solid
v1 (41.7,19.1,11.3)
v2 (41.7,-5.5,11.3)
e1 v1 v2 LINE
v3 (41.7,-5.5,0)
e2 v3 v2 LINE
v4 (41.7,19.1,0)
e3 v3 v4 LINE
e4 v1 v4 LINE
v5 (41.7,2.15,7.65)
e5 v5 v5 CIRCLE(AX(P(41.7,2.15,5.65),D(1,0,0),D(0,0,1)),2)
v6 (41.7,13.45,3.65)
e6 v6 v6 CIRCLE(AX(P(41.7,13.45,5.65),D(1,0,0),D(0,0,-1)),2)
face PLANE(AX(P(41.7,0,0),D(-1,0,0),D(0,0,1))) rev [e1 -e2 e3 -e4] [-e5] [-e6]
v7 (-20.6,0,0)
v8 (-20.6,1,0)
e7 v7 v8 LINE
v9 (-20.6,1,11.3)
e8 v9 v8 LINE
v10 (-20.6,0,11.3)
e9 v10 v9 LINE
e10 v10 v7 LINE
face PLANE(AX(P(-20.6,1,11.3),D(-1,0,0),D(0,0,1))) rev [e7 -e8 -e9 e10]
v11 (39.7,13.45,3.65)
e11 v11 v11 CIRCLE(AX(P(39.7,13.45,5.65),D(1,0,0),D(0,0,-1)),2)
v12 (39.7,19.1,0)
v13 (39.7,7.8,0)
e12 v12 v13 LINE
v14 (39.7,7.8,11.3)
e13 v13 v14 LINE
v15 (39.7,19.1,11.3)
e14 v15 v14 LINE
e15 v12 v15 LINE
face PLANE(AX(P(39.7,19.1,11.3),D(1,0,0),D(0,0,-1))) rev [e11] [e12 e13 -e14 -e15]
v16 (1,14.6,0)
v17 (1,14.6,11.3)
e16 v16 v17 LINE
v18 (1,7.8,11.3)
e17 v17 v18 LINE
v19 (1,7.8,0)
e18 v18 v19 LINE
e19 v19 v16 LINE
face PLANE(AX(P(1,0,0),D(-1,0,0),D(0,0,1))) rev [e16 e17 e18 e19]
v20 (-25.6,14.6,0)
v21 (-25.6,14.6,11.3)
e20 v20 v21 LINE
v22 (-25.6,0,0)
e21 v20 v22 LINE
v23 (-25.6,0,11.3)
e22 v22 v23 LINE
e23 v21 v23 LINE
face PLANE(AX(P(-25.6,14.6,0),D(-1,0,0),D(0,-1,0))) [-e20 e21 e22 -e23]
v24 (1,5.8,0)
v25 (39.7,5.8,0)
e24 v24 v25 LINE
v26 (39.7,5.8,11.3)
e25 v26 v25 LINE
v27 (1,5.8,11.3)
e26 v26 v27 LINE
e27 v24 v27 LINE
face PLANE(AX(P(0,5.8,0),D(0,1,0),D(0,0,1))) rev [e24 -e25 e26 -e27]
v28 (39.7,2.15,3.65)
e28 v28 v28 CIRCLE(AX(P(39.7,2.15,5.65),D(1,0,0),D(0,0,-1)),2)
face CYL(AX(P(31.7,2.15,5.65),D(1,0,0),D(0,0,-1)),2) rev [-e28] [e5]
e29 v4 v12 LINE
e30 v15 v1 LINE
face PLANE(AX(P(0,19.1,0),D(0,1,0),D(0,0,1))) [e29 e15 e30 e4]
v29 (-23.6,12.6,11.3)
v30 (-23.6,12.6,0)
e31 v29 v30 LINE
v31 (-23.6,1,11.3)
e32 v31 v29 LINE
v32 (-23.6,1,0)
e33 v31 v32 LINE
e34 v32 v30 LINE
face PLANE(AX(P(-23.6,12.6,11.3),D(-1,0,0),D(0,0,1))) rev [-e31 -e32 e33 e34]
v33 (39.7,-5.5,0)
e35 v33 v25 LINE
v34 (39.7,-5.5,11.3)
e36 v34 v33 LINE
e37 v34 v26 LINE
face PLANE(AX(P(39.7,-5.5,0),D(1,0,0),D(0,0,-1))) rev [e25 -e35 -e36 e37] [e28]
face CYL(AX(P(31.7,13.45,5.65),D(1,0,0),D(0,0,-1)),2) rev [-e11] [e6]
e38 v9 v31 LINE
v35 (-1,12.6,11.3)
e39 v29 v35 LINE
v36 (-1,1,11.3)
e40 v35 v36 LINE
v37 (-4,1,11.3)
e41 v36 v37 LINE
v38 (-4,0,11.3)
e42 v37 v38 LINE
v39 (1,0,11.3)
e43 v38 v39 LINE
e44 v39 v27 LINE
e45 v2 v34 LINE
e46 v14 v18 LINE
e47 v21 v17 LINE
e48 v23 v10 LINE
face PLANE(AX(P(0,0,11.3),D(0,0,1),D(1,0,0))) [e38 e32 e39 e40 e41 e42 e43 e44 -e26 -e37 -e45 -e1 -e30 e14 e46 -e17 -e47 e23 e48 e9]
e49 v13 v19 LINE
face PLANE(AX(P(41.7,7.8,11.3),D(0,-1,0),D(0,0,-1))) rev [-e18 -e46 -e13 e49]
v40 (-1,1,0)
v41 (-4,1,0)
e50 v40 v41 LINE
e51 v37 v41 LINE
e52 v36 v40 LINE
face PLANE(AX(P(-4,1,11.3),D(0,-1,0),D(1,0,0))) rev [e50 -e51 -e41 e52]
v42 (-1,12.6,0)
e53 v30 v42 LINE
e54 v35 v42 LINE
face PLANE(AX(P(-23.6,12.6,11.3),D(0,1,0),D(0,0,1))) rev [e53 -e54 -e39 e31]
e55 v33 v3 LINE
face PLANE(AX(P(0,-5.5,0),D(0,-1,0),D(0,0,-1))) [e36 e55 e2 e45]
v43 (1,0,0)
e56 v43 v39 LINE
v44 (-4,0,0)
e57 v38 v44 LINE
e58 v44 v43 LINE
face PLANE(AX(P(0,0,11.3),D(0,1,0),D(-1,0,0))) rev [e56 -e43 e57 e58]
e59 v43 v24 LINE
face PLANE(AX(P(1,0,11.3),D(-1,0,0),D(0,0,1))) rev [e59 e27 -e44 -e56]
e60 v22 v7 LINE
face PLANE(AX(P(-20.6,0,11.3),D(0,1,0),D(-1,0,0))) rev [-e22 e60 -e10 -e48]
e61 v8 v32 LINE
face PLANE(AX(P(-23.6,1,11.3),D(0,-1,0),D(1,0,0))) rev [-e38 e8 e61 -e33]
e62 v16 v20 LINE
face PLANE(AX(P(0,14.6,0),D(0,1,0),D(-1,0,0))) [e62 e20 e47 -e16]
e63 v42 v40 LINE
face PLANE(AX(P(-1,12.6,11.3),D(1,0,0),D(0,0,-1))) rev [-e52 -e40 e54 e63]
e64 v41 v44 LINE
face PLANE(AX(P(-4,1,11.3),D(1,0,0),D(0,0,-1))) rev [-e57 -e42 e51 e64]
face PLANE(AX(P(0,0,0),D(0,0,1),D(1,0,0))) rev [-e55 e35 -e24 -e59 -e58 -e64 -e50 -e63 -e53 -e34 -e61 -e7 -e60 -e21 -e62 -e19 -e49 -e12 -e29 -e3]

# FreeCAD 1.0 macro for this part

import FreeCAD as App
import Part
import Sketcher


def add_polygon(sketch, points):
    """Adds a closed chain of lines whose ends are joined by coincident constraints."""
    first, n = sketch.GeometryCount, len(points)
    for a, b in zip(points, points[1:] + points[:1]):
        sketch.addGeometry(Part.LineSegment(App.Vector(*a, 0), App.Vector(*b, 0)), False)
    for i in range(n):
        sketch.addConstraint(Sketcher.Constraint("Coincident", first + i, 2, first + (i + 1) % n, 1))

doc = App.newDocument("Part")
body = doc.addObject("PartDesign::Body", "Body")

sketch1 = body.newObject("Sketcher::SketchObject", "Sketch")
sketch1.AttachmentSupport = (doc.getObject("XY_Plane"), [""])
sketch1.MapMode = "FlatFace"
add_polygon(sketch1, [(-20.6, 0), (-20.6, 1), (-23.6, 1), (-23.6, 12.6), (-1, 12.6), (-1, 1), (-4, 1), (-4, 0), (0, 0), (0, 13.6), (-24.6, 13.6), (-24.6, 0)])
sketch1.addConstraint(Sketcher.Constraint("Vertical", 0))
sketch1.addConstraint(Sketcher.Constraint("Horizontal", 1))
sketch1.addConstraint(Sketcher.Constraint("Vertical", 2))
sketch1.addConstraint(Sketcher.Constraint("Horizontal", 3))
sketch1.addConstraint(Sketcher.Constraint("Vertical", 4))
sketch1.addConstraint(Sketcher.Constraint("Horizontal", 5))
sketch1.addConstraint(Sketcher.Constraint("Vertical", 6))
sketch1.addConstraint(Sketcher.Constraint("Horizontal", 7))
sketch1.addConstraint(Sketcher.Constraint("Vertical", 8))
sketch1.addConstraint(Sketcher.Constraint("Horizontal", 9))
sketch1.addConstraint(Sketcher.Constraint("Vertical", 10))
sketch1.addConstraint(Sketcher.Constraint("Horizontal", 11))
sketch1.addConstraint(Sketcher.Constraint("Coincident", 7, 2, -1, 1))
sketch1.addConstraint(Sketcher.Constraint("PointOnObject", 10, 2, -1))
sketch1.addConstraint(Sketcher.Constraint("Horizontal", 1, 2, 4, 2))
sketch1.addConstraint(Sketcher.Constraint("Equal", 1, 5))
sketch1.addConstraint(Sketcher.Constraint("Equal", 7, 11))
sketch1.addConstraint(Sketcher.Constraint("DistanceX", 1, 2, 1, 1, 3.0))
sketch1.addConstraint(Sketcher.Constraint("DistanceX", 7, 1, 7, 2, 4.0))
sketch1.addConstraint(Sketcher.Constraint("DistanceY", 0, 1, 0, 2, 1.0))
sketch1.addConstraint(Sketcher.Constraint("DistanceX", 3, 1, 3, 2, 22.6))
sketch1.addConstraint(Sketcher.Constraint("DistanceY", 2, 1, 2, 2, 11.6))
sketch1.addConstraint(Sketcher.Constraint("DistanceY", 8, 1, 8, 2, 13.6))
pad1 = body.newObject("PartDesign::Pad", "Pad")
pad1.Profile = sketch1
pad1.Length = 11.3

sketch2 = body.newObject("Sketcher::SketchObject", "Sketch001")
sketch2.AttachmentSupport = (doc.getObject("XZ_Plane"), [""])
sketch2.MapMode = "FlatFace"
sketch2.AttachmentOffset = App.Placement(App.Vector(0, 0, -13.6), App.Rotation())
add_polygon(sketch2, [(-17, 0), (-17, 11), (-8, 11), (-8, 0)])
sketch2.addConstraint(Sketcher.Constraint("Vertical", 0))
sketch2.addConstraint(Sketcher.Constraint("Horizontal", 1))
sketch2.addConstraint(Sketcher.Constraint("Vertical", 2))
sketch2.addConstraint(Sketcher.Constraint("Horizontal", 3))
sketch2.addConstraint(Sketcher.Constraint("PointOnObject", 2, 2, -1))
sketch2.addConstraint(Sketcher.Constraint("DistanceX", 1, 1, 1, 2, 8.6))
sketch2.addConstraint(Sketcher.Constraint("DistanceY", 0, 1, 0, 2, 11.3))
sketch2.addConstraint(Sketcher.Constraint("DistanceX", 1, 2, -1, 1, 8.0))
pad2 = body.newObject("PartDesign::Pad", "Pad001")
pad2.Profile = sketch2
pad2.Length = 1
pad2.Reversed = True

sketch3 = body.newObject("Sketcher::SketchObject", "Sketch002")
sketch3.AttachmentSupport = (doc.getObject("YZ_Plane"), [""])
sketch3.MapMode = "FlatFace"
sketch3.AttachmentOffset = App.Placement(App.Vector(0, 0, -8), App.Rotation())
add_polygon(sketch3, [(14.6, 11.3), (13.6, 11.3), (13.6, 0), (14.6, 0)])
sketch3.addConstraint(Sketcher.Constraint("Horizontal", 0))
sketch3.addConstraint(Sketcher.Constraint("Vertical", 1))
sketch3.addConstraint(Sketcher.Constraint("Horizontal", 2))
sketch3.addConstraint(Sketcher.Constraint("Vertical", 3))
sketch3.addConstraint(Sketcher.Constraint("PointOnObject", 1, 2, -1))
sketch3.addConstraint(Sketcher.Constraint("DistanceX", 0, 2, 0, 1, 1.0))
sketch3.addConstraint(Sketcher.Constraint("DistanceY", 1, 2, 1, 1, 11.3))
sketch3.addConstraint(Sketcher.Constraint("DistanceX", -1, 1, 0, 2, 13.6))
pad3 = body.newObject("PartDesign::Pad", "Pad002")
pad3.Profile = sketch3
pad3.Length = 10

sketch4 = body.newObject("Sketcher::SketchObject", "Sketch003")
sketch4.AttachmentSupport = (doc.getObject("XZ_Plane"), [""])
sketch4.MapMode = "FlatFace"
sketch4.AttachmentOffset = App.Placement(App.Vector(0, 0, -13.6), App.Rotation())
add_polygon(sketch4, [(0, 11.3), (0, 0), (2, 0), (2, 11.3)])
sketch4.addConstraint(Sketcher.Constraint("Vertical", 0))
sketch4.addConstraint(Sketcher.Constraint("Horizontal", 1))
sketch4.addConstraint(Sketcher.Constraint("Vertical", 2))
sketch4.addConstraint(Sketcher.Constraint("Horizontal", 3))
sketch4.addConstraint(Sketcher.Constraint("Coincident", 0, 2, -1, 1))
sketch4.addConstraint(Sketcher.Constraint("DistanceX", 1, 1, 1, 2, 2.0))
sketch4.addConstraint(Sketcher.Constraint("DistanceY", 0, 2, 0, 1, 11.3))
pad4 = body.newObject("PartDesign::Pad", "Pad003")
pad4.Profile = sketch4
pad4.Length = 7.8

sketch5 = body.newObject("Sketcher::SketchObject", "Sketch004")
sketch5.AttachmentSupport = (doc.getObject("YZ_Plane"), [""])
sketch5.MapMode = "FlatFace"
sketch5.AttachmentOffset = App.Placement(App.Vector(0, 0, 2), App.Rotation())
add_polygon(sketch5, [(7.8, 11.3), (5.8, 11.3), (5.8, 0), (7.8, 0)])
sketch5.addConstraint(Sketcher.Constraint("Horizontal", 0))
sketch5.addConstraint(Sketcher.Constraint("Vertical", 1))
sketch5.addConstraint(Sketcher.Constraint("Horizontal", 2))
sketch5.addConstraint(Sketcher.Constraint("Vertical", 3))
sketch5.addConstraint(Sketcher.Constraint("PointOnObject", 1, 2, -1))
sketch5.addConstraint(Sketcher.Constraint("DistanceX", 0, 2, 0, 1, 2.0))
sketch5.addConstraint(Sketcher.Constraint("DistanceY", 1, 2, 1, 1, 11.3))
sketch5.addConstraint(Sketcher.Constraint("DistanceX", -1, 1, 0, 2, 5.8))
pad5 = body.newObject("PartDesign::Pad", "Pad004")
pad5.Profile = sketch5
pad5.Length = 39.7

sketch6 = body.newObject("Sketcher::SketchObject", "Sketch005")
sketch6.AttachmentSupport = (doc.getObject("XZ_Plane"), [""])
sketch6.MapMode = "FlatFace"
sketch6.AttachmentOffset = App.Placement(App.Vector(0, 0, -5.8), App.Rotation())
add_polygon(sketch6, [(39.7, 11.3), (39.7, 0), (41.7, 0), (41.7, 11.3)])
sketch6.addConstraint(Sketcher.Constraint("Vertical", 0))
sketch6.addConstraint(Sketcher.Constraint("Horizontal", 1))
sketch6.addConstraint(Sketcher.Constraint("Vertical", 2))
sketch6.addConstraint(Sketcher.Constraint("Horizontal", 3))
sketch6.addConstraint(Sketcher.Constraint("PointOnObject", 0, 2, -1))
sketch6.addConstraint(Sketcher.Constraint("DistanceX", 1, 1, 1, 2, 2.0))
sketch6.addConstraint(Sketcher.Constraint("DistanceY", 0, 2, 0, 1, 11.3))
sketch6.addConstraint(Sketcher.Constraint("DistanceX", -1, 1, 0, 2, 39.7))
pad6 = body.newObject("PartDesign::Pad", "Pad005")
pad6.Profile = sketch6
pad6.Length = 11.3

sketch7 = body.newObject("Sketcher::SketchObject", "Sketch006")
sketch7.AttachmentSupport = (doc.getObject("XZ_Plane"), [""])
sketch7.MapMode = "FlatFace"
sketch7.AttachmentOffset = App.Placement(App.Vector(0, 0, -7.8), App.Rotation())
add_polygon(sketch7, [(39.7, 0), (39.7, 11.3), (41.7, 11.3), (41.7, 0)])
sketch7.addConstraint(Sketcher.Constraint("Vertical", 0))
sketch7.addConstraint(Sketcher.Constraint("Horizontal", 1))
sketch7.addConstraint(Sketcher.Constraint("Vertical", 2))
sketch7.addConstraint(Sketcher.Constraint("Horizontal", 3))
sketch7.addConstraint(Sketcher.Constraint("PointOnObject", 2, 2, -1))
sketch7.addConstraint(Sketcher.Constraint("DistanceX", 1, 1, 1, 2, 2.0))
sketch7.addConstraint(Sketcher.Constraint("DistanceY", 0, 1, 0, 2, 11.3))
sketch7.addConstraint(Sketcher.Constraint("DistanceX", -1, 1, 0, 2, 39.7))
pad7 = body.newObject("PartDesign::Pad", "Pad006")
pad7.Profile = sketch7
pad7.Length = 11.3
pad7.Reversed = True

sketch8 = body.newObject("Sketcher::SketchObject", "Sketch007")
sketch8.AttachmentSupport = (doc.getObject("XY_Plane"), [""])
sketch8.MapMode = "FlatFace"
sketch8.AttachmentOffset = App.Placement(App.Vector(0, 0, 11.3), App.Rotation())
add_polygon(sketch8, [(-16.6, 14.6), (-25.6, 14.6), (-25.6, 0), (-24.6, 0), (-24.6, 13.6), (-16.6, 13.6)])
sketch8.addConstraint(Sketcher.Constraint("Horizontal", 0))
sketch8.addConstraint(Sketcher.Constraint("Vertical", 1))
sketch8.addConstraint(Sketcher.Constraint("Horizontal", 2))
sketch8.addConstraint(Sketcher.Constraint("Vertical", 3))
sketch8.addConstraint(Sketcher.Constraint("Horizontal", 4))
sketch8.addConstraint(Sketcher.Constraint("Vertical", 5))
sketch8.addConstraint(Sketcher.Constraint("PointOnObject", 1, 2, -1))
sketch8.addConstraint(Sketcher.Constraint("Equal", 2, 5))
sketch8.addConstraint(Sketcher.Constraint("DistanceX", 0, 2, 0, 1, 9.0))
sketch8.addConstraint(Sketcher.Constraint("DistanceX", 2, 1, 2, 2, 1.0))
sketch8.addConstraint(Sketcher.Constraint("DistanceY", 1, 2, 1, 1, 14.6))
sketch8.addConstraint(Sketcher.Constraint("DistanceX", 0, 2, -1, 1, 25.6))
pad8 = body.newObject("PartDesign::Pad", "Pad007")
pad8.Profile = sketch8
pad8.Length = 11.3
pad8.Reversed = True

sketch9 = body.newObject("Sketcher::SketchObject", "Sketch008")
sketch9.AttachmentSupport = (doc.getObject("XZ_Plane"), [""])
sketch9.MapMode = "FlatFace"
sketch9.AttachmentOffset = App.Placement(App.Vector(0, 0, -5.8), App.Rotation())
add_polygon(sketch9, [(0, 11.3), (0, 0), (1, 0), (1, 11.3)])
sketch9.addConstraint(Sketcher.Constraint("Vertical", 0))
sketch9.addConstraint(Sketcher.Constraint("Horizontal", 1))
sketch9.addConstraint(Sketcher.Constraint("Vertical", 2))
sketch9.addConstraint(Sketcher.Constraint("Horizontal", 3))
sketch9.addConstraint(Sketcher.Constraint("Coincident", 0, 2, -1, 1))
sketch9.addConstraint(Sketcher.Constraint("DistanceX", 1, 1, 1, 2, 1.0))
sketch9.addConstraint(Sketcher.Constraint("DistanceY", 0, 2, 0, 1, 11.3))
pad9 = body.newObject("PartDesign::Pad", "Pad008")
pad9.Profile = sketch9
pad9.Length = 5.8

sketch10 = body.newObject("Sketcher::SketchObject", "Sketch009")
sketch10.AttachmentSupport = (doc.getObject("YZ_Plane"), [""])
sketch10.MapMode = "FlatFace"
sketch10.AttachmentOffset = App.Placement(App.Vector(0, 0, 2), App.Rotation())
add_polygon(sketch10, [(15, 11), (8, 11), (8, 0), (15, 0)])
sketch10.addConstraint(Sketcher.Constraint("Horizontal", 0))
sketch10.addConstraint(Sketcher.Constraint("Vertical", 1))
sketch10.addConstraint(Sketcher.Constraint("Horizontal", 2))
sketch10.addConstraint(Sketcher.Constraint("Vertical", 3))
sketch10.addConstraint(Sketcher.Constraint("PointOnObject", 1, 2, -1))
sketch10.addConstraint(Sketcher.Constraint("DistanceX", 0, 2, 0, 1, 6.8))
sketch10.addConstraint(Sketcher.Constraint("DistanceY", 1, 2, 1, 1, 11.3))
sketch10.addConstraint(Sketcher.Constraint("DistanceX", -1, 1, 0, 2, 7.8))
pocket1 = body.newObject("PartDesign::Pocket", "Pocket")
pocket1.Profile = sketch10
pocket1.Length = 1

sketch11 = body.newObject("Sketcher::SketchObject", "Sketch010")
sketch11.AttachmentSupport = (doc.getObject("YZ_Plane"), [""])
sketch11.MapMode = "FlatFace"
sketch11.AttachmentOffset = App.Placement(App.Vector(0, 0, 41.7), App.Rotation())
sketch11.addGeometry(Part.Circle(App.Vector(13.4, 5.7, 0), App.Vector(0, 0, 1), 2), False)
sketch11.addGeometry(Part.Circle(App.Vector(2.1, 5.7, 0), App.Vector(0, 0, 1), 2), False)
sketch11.addConstraint(Sketcher.Constraint("Equal", 0, 1))
sketch11.addConstraint(Sketcher.Constraint("Horizontal", 0, 3, 1, 3))
sketch11.addConstraint(Sketcher.Constraint("Diameter", 0, 4.0))
sketch11.addConstraint(Sketcher.Constraint("DistanceX", 1, 3, 0, 3, 11.3))
sketch11.addConstraint(Sketcher.Constraint("DistanceX", -1, 1, 0, 3, 13.45))
sketch11.addConstraint(Sketcher.Constraint("DistanceY", -1, 1, 0, 3, 5.65))
pocket2 = body.newObject("PartDesign::Pocket", "Pocket001")
pocket2.Profile = sketch11
pocket2.Length = 10

doc.recompute()
